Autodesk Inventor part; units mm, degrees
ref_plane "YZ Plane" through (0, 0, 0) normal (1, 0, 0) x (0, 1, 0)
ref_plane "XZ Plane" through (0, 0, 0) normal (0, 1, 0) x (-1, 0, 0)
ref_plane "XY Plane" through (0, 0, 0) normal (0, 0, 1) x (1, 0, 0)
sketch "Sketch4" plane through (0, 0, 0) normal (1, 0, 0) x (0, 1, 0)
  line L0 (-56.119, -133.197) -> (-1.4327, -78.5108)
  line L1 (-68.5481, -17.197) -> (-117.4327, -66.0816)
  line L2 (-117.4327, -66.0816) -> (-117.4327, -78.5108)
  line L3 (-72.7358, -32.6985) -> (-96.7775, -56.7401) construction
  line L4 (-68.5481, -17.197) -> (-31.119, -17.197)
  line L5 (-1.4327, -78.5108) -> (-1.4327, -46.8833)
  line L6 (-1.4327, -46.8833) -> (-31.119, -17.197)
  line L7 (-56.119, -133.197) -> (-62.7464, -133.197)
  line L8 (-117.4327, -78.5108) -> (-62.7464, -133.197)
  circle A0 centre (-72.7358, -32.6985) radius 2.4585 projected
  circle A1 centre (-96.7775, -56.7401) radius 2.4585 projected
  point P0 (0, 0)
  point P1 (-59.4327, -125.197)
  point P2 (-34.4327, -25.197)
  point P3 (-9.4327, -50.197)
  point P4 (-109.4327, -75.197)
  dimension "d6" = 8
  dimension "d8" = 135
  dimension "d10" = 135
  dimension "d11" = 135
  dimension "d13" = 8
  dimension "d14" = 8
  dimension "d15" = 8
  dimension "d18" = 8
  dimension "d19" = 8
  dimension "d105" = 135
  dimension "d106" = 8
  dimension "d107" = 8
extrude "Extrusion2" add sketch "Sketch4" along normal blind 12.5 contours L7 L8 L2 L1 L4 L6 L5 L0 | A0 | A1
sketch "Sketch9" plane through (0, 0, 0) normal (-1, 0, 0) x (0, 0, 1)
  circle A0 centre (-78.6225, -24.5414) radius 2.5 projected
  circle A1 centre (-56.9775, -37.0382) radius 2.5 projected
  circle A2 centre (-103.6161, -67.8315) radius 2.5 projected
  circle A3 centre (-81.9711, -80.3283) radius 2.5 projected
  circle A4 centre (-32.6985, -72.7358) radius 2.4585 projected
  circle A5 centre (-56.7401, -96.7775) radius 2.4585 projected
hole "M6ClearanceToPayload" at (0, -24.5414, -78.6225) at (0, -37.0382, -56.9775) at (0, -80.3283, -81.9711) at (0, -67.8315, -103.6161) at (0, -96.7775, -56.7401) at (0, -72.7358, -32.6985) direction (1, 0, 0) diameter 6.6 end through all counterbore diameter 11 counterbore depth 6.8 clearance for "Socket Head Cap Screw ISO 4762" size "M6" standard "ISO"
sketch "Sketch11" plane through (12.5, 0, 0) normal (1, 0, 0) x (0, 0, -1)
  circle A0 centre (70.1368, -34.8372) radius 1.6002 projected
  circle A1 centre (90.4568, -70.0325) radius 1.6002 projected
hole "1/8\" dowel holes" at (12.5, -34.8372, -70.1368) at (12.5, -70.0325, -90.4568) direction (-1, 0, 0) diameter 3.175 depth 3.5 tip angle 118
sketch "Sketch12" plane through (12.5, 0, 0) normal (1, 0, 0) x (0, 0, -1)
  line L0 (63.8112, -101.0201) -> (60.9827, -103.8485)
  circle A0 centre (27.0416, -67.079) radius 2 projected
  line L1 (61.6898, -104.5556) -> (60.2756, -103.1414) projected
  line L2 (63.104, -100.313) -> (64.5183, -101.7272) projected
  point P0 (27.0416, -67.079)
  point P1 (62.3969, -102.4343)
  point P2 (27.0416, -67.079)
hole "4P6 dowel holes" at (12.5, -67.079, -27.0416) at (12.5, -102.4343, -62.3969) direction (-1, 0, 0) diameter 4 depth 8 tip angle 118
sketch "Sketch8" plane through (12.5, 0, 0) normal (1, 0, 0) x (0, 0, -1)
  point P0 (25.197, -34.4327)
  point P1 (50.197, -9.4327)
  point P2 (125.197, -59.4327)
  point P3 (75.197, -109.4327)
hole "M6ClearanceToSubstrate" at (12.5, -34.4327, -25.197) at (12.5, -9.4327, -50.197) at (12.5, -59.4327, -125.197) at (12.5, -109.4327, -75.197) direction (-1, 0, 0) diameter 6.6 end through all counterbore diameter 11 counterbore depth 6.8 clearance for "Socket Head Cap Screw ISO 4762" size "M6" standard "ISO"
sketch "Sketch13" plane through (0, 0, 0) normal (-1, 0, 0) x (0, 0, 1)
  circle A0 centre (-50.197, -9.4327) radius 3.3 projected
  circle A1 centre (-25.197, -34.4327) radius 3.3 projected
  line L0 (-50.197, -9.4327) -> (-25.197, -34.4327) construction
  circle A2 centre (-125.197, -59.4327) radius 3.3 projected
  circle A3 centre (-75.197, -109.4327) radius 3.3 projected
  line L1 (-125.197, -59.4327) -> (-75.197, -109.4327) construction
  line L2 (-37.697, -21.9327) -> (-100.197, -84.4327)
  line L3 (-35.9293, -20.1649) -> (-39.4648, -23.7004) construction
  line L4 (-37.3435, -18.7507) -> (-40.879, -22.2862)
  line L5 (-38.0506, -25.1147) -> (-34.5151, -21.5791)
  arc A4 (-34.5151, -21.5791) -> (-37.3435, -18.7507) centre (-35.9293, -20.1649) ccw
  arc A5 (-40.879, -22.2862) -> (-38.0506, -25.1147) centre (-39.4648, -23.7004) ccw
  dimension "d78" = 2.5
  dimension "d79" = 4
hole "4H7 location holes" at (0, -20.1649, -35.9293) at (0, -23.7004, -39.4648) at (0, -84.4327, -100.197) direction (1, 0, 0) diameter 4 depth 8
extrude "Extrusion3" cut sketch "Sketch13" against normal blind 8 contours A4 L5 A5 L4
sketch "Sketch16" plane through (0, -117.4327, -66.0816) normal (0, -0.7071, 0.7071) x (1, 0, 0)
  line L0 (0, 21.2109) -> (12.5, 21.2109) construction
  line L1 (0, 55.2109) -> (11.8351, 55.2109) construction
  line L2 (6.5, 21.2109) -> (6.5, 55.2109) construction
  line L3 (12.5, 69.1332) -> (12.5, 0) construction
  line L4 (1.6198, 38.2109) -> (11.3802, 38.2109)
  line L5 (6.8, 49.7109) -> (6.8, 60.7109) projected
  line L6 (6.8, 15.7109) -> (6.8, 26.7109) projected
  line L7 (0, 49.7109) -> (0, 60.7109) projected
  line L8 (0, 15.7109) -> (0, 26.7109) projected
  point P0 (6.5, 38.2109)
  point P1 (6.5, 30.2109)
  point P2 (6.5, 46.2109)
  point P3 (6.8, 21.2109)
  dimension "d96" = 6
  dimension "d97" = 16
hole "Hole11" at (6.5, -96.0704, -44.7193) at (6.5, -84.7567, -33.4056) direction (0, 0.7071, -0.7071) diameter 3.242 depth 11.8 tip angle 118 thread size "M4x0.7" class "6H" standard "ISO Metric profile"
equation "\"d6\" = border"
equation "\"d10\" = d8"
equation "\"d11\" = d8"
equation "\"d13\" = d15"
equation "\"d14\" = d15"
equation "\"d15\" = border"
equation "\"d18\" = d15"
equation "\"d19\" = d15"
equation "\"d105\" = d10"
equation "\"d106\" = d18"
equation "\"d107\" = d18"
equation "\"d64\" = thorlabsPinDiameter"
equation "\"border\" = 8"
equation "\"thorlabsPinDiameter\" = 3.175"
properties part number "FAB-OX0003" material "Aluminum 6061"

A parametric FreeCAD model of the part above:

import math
import FreeCAD as App
import Part
import Sketcher
from FreeCAD import Vector
Q = App.Units.Quantity

doc = App.newDocument("Part")
body = doc.addObject("PartDesign::Body", "Body")

# Sketch on YZ plane
sketch1 = body.newObject("Sketcher::SketchObject", "Sketch")
sketch1.AttachmentSupport = (doc.getObject("YZ_Plane"), [""])
sketch1.MapMode = "FlatFace"
sketch1.addGeometry([
    Part.LineSegment(Vector(-63, -133, 0), Vector(-56, -133, 0)),  # 0
    Part.LineSegment(Vector(-56, -133, 0), Vector(-1, -79, 0)),  # 1
    Part.LineSegment(Vector(-1, -79, 0), Vector(-1, -47, 0)),  # 2
    Part.LineSegment(Vector(-1, -47, 0), Vector(-31, -17, 0)),  # 3
    Part.LineSegment(Vector(-31, -17, 0), Vector(-69, -17, 0)),  # 4
    Part.LineSegment(Vector(-69, -17, 0), Vector(-117, -66, 0)),  # 5
    Part.LineSegment(Vector(-117, -66, 0), Vector(-117, -79, 0)),  # 6
    Part.LineSegment(Vector(-117, -79, 0), Vector(-63, -133, 0)),  # 7
], False)
sketch1.addConstraint([
    Sketcher.Constraint("Coincident", 0, 2, 1, 1),
    Sketcher.Constraint("Coincident", 1, 2, 2, 1),
    Sketcher.Constraint("Coincident", 2, 2, 3, 1),
    Sketcher.Constraint("Coincident", 3, 2, 4, 1),
    Sketcher.Constraint("Coincident", 4, 2, 5, 1),
    Sketcher.Constraint("Coincident", 5, 2, 6, 1),
    Sketcher.Constraint("Coincident", 6, 2, 7, 1),
    Sketcher.Constraint("Coincident", 7, 2, 0, 1),
    Sketcher.Constraint("Horizontal", 0),
    Sketcher.Constraint("Vertical", 2),
    Sketcher.Constraint("Horizontal", 4),
    Sketcher.Constraint("Vertical", 6),
    Sketcher.Constraint("Perpendicular", 1, 3),
    Sketcher.Constraint("Perpendicular", 3, 5),
    Sketcher.Constraint("Perpendicular", 5, 7),
    Sketcher.Constraint("Horizontal", 1, 2, 6, 2),
    Sketcher.Constraint("Equal", 1, 7),
    Sketcher.Constraint("DistanceX", 0, 2, 3, 2, 25.0),
    Sketcher.Constraint("DistanceY", 0, 2, 3, 2, 116.0),
    Sketcher.Constraint("DistanceX", 5, 2, 1, 2, 116.0),
    Sketcher.Constraint("DistanceX", 4, 2, 4, 1, 37.429),
    Sketcher.Constraint("Distance", 1, 77.338),
    Sketcher.Constraint("DistanceX", 0, 2, -1, 1, 56.119),
    Sketcher.Constraint("DistanceY", 0, 2, -1, 1, 133.197),
])
pad1 = body.newObject("PartDesign::Pad", "Pad")
pad1.Profile = sketch1
pad1.Length = 12.5

# Sketch on YZ plane
sketch2 = body.newObject("Sketcher::SketchObject", "Sketch001")
sketch2.AttachmentSupport = (doc.getObject("YZ_Plane"), [""])
sketch2.MapMode = "FlatFace"
sketch2.addGeometry([
    Part.Circle(Vector(-24.5, -78.6, 0), Vector(0, 0, 1), 3.3),  # 0
    Part.Circle(Vector(-37, -57, 0), Vector(0, 0, 1), 3.3),  # 1
    Part.Circle(Vector(-80.3, -82, 0), Vector(0, 0, 1), 3.3),  # 2
    Part.Circle(Vector(-67.8, -103.6, 0), Vector(0, 0, 1), 3.3),  # 3
    Part.Circle(Vector(-96.8, -56.7, 0), Vector(0, 0, 1), 3.3),  # 4
    Part.Circle(Vector(-72.7, -32.7, 0), Vector(0, 0, 1), 3.3),  # 5
], False)
sketch2.addConstraint([
    Sketcher.Constraint("Equal", 0, 1),
    Sketcher.Constraint("Equal", 1, 2),
    Sketcher.Constraint("Equal", 2, 3),
    Sketcher.Constraint("Equal", 3, 4),
    Sketcher.Constraint("Equal", 4, 5),
    Sketcher.Constraint("Diameter", 0, 6.6),
    Sketcher.Constraint("DistanceY", 4, 3, -1, 1, 56.74),
    Sketcher.Constraint("DistanceX", 2, 3, 1, 3, 43.29),
    Sketcher.Constraint("DistanceX", 3, 3, 0, 3, 43.29),
    Sketcher.Constraint("DistanceY", 2, 3, -1, 1, 81.971),
    Sketcher.Constraint("DistanceY", 3, 3, -1, 1, 103.616),
    Sketcher.Constraint("DistanceY", 0, 3, 1, 3, 21.645),
    Sketcher.Constraint("DistanceX", 2, 3, 0, 3, 55.787),
    Sketcher.Constraint("DistanceX", 4, 3, 3, 3, 28.946),
    Sketcher.Constraint("DistanceY", 1, 3, 5, 3, 24.279),
    Sketcher.Constraint("DistanceX", 0, 3, -1, 1, 24.5414),
    Sketcher.Constraint("DistanceY", 0, 3, -1, 1, 78.6225),
    Sketcher.Constraint("DistanceX", 5, 3, -1, 1, 72.7358),
])
doc.recompute()
hole = body.newObject("PartDesign::Hole", "Hole")
hole.Profile = sketch2
hole.ThreadType = "None"
hole.Diameter = 6.6
hole.DepthType = "ThroughAll"
hole.HoleCutType = "Counterbore"
hole.HoleCutDiameter = 11
hole.HoleCutDepth = 6.8
hole.Reversed = True

# Sketch on YZ plane
sketch3 = body.newObject("Sketcher::SketchObject", "Sketch002")
sketch3.AttachmentSupport = (doc.getObject("YZ_Plane"), [""])
sketch3.MapMode = "FlatFace"
sketch3.AttachmentOffset = App.Placement(Vector(0, 0, 12.5), App.Rotation())
sketch3.addGeometry([
    Part.Circle(Vector(-34.8, -70.1, 0), Vector(0, 0, 1), 1.6),
    Part.Circle(Vector(-70, -90.5, 0), Vector(0, 0, 1), 1.6),
], False)
sketch3.addConstraint([
    Sketcher.Constraint("Equal", 0, 1),
    Sketcher.Constraint("Diameter", 0, 3.175),
    Sketcher.Constraint("DistanceY", 1, 3, 0, 3, 20.32),
    Sketcher.Constraint("DistanceX", 0, 3, -1, 1, 34.8372),
    Sketcher.Constraint("DistanceY", 0, 3, -1, 1, 70.1368),
    Sketcher.Constraint("DistanceX", 1, 3, -1, 1, 70.0325),
])
doc.recompute()
hole2 = body.newObject("PartDesign::Hole", "Hole001")
hole2.Profile = sketch3
hole2.ThreadType = "None"
hole2.Diameter = 3.175
hole2.DepthType = "Dimension"
hole2.Depth = 3.5
hole2.DrillPoint = "Angled"
hole2.DrillPointAngle = 118

# Sketch on YZ plane
sketch4 = body.newObject("Sketcher::SketchObject", "Sketch003")
sketch4.AttachmentSupport = (doc.getObject("YZ_Plane"), [""])
sketch4.MapMode = "FlatFace"
sketch4.AttachmentOffset = App.Placement(Vector(0, 0, 12.5), App.Rotation())
sketch4.addGeometry([
    Part.Circle(Vector(-67.1, -27, 0), Vector(0, 0, 1), 2),
    Part.Circle(Vector(-102.4, -62.4, 0), Vector(0, 0, 1), 2),
], False)
sketch4.addConstraint([
    Sketcher.Constraint("Equal", 0, 1),
    Sketcher.Constraint("Diameter", 0, 4.0),
    Sketcher.Constraint("DistanceX", 0, 3, -1, 1, 67.079),
    Sketcher.Constraint("DistanceY", 1, 3, -1, 1, 62.397),
    Sketcher.Constraint("DistanceY", 0, 3, -1, 1, 27.0416),
    Sketcher.Constraint("DistanceX", 1, 3, -1, 1, 102.4343),
])
doc.recompute()
hole3 = body.newObject("PartDesign::Hole", "Hole002")
hole3.Profile = sketch4
hole3.ThreadType = "None"
hole3.Diameter = 4
hole3.DepthType = "Dimension"
hole3.Depth = 8
hole3.DrillPoint = "Angled"
hole3.DrillPointAngle = 118

# Sketch on YZ plane
sketch5 = body.newObject("Sketcher::SketchObject", "Sketch004")
sketch5.AttachmentSupport = (doc.getObject("YZ_Plane"), [""])
sketch5.MapMode = "FlatFace"
sketch5.AttachmentOffset = App.Placement(Vector(0, 0, 12.5), App.Rotation())
sketch5.addGeometry([
    Part.Circle(Vector(-34.4, -25.2, 0), Vector(0, 0, 1), 3.3),
    Part.Circle(Vector(-9.4, -50.2, 0), Vector(0, 0, 1), 3.3),
    Part.Circle(Vector(-59.4, -125.2, 0), Vector(0, 0, 1), 3.3),
    Part.Circle(Vector(-109.4, -75.2, 0), Vector(0, 0, 1), 3.3),
], False)
sketch5.addConstraint([
    Sketcher.Constraint("Equal", 0, 1),
    Sketcher.Constraint("Equal", 1, 2),
    Sketcher.Constraint("Equal", 2, 3),
    Sketcher.Constraint("Diameter", 0, 6.6),
    Sketcher.Constraint("DistanceX", 0, 3, 1, 3, 25.0),
    Sketcher.Constraint("DistanceY", 1, 3, 0, 3, 25.0),
    Sketcher.Constraint("DistanceX", 2, 3, 1, 3, 50.0),
    Sketcher.Constraint("DistanceY", 2, 3, 1, 3, 75.0),
    Sketcher.Constraint("DistanceX", 3, 3, 2, 3, 50.0),
    Sketcher.Constraint("DistanceY", 2, 3, 3, 3, 50.0),
    Sketcher.Constraint("DistanceY", 0, 3, -1, 1, 25.197),
    Sketcher.Constraint("DistanceX", 0, 3, -1, 1, 34.4327),
])
doc.recompute()
hole4 = body.newObject("PartDesign::Hole", "Hole003")
hole4.Profile = sketch5
hole4.ThreadType = "None"
hole4.Diameter = 6.6
hole4.DepthType = "ThroughAll"
hole4.HoleCutType = "Counterbore"
hole4.HoleCutDiameter = 11
hole4.HoleCutDepth = 6.8

# Sketch on YZ plane
sketch6 = body.newObject("Sketcher::SketchObject", "Sketch005")
sketch6.AttachmentSupport = (doc.getObject("YZ_Plane"), [""])
sketch6.MapMode = "FlatFace"
sketch6.addGeometry([
    Part.Circle(Vector(-20.2, -35.9, 0), Vector(0, 0, 1), 2),
    Part.Circle(Vector(-23.7, -39.5, 0), Vector(0, 0, 1), 2),
    Part.Circle(Vector(-84.4, -100.2, 0), Vector(0, 0, 1), 2),
], False)
sketch6.addConstraint([
    Sketcher.Constraint("Equal", 0, 1),
    Sketcher.Constraint("Equal", 1, 2),
    Sketcher.Constraint("Diameter", 0, 4.0),
    Sketcher.Constraint("DistanceX", 0, 3, -1, 1, 20.165),
    Sketcher.Constraint("DistanceY", 2, 3, -1, 1, 100.197),
    Sketcher.Constraint("DistanceY", 0, 3, -1, 1, 35.9293),
    Sketcher.Constraint("DistanceX", 1, 3, -1, 1, 23.7004),
    Sketcher.Constraint("DistanceY", 1, 3, -1, 1, 39.4648),
    Sketcher.Constraint("DistanceX", 2, 3, -1, 1, 84.4327),
])
doc.recompute()
hole5 = body.newObject("PartDesign::Hole", "Hole004")
hole5.Profile = sketch6
hole5.ThreadType = "None"
hole5.Diameter = 4
hole5.DepthType = "Dimension"
hole5.Depth = 8
hole5.DrillPoint = "Flat"
hole5.Reversed = True

# Sketch on YZ plane
sketch7 = body.newObject("Sketcher::SketchObject", "Sketch006")
sketch7.AttachmentSupport = (doc.getObject("YZ_Plane"), [""])
sketch7.MapMode = "FlatFace"
sketch7.addGeometry([
    Part.ArcOfCircle(Part.Circle(Vector(-20.2, -35.9, 0), Vector(0, 0, 1), 2), math.radians(-45), math.radians(135)),
    Part.LineSegment(Vector(-18.8, -37.3, 0), Vector(-22.3, -40.9, 0)),
    Part.ArcOfCircle(Part.Circle(Vector(-23.7, -39.5, 0), Vector(0, 0, 1), 2), math.radians(135), math.radians(315)),
    Part.LineSegment(Vector(-25.1, -38.1, 0), Vector(-21.6, -34.5, 0)),
], False)
sketch7.addConstraint([
    Sketcher.Constraint("Tangent", 0, 1, 1, 1),
    Sketcher.Constraint("Tangent", 1, 2, 2, 2),
    Sketcher.Constraint("Tangent", 2, 1, 3, 1),
    Sketcher.Constraint("Tangent", 3, 2, 0, 2),
    Sketcher.Constraint("Equal", 0, 2),
    Sketcher.Constraint("Radius", 0, 2.0),
    Sketcher.Constraint("Angle", 1, Q("-135 deg")),
    Sketcher.Constraint("Distance", 1, 5.0),
    Sketcher.Constraint("DistanceX", 0, 3, -1, 1, 20.165),
    Sketcher.Constraint("DistanceY", 1, 2, -1, 1, 40.879),
])
pocket1 = body.newObject("PartDesign::Pocket", "Pocket")
pocket1.Profile = sketch7
pocket1.Length = 8
pocket1.Reversed = True

# Sketch on an angled plane
sketch8 = body.newObject("Sketcher::SketchObject", "Sketch007")
sketch8.Placement = App.Placement(Vector(0, -25.67555, 25.67555), App.Rotation(Vector(0, -0.707106781, -0.707106781), Vector(0.999999999, 0, 0), Vector(0, -0.707106781, 0.707106781), "ZXY"))
sketch8.addGeometry([
    Part.Circle(Vector(99.6, 6.5, 0), Vector(0, 0, 1), 1.6),
    Part.Circle(Vector(83.6, 6.5, 0), Vector(0, 0, 1), 1.6),
], False)
sketch8.addConstraint([
    Sketcher.Constraint("Equal", 0, 1),
    Sketcher.Constraint("Horizontal", 0, 3, 1, 3),
    Sketcher.Constraint("Diameter", 0, 3.242),
    Sketcher.Constraint("DistanceX", 1, 3, 0, 3, 16.0),
    Sketcher.Constraint("DistanceY", -1, 1, 0, 3, 6.5),
    Sketcher.Constraint("DistanceX", -1, 1, 0, 3, 99.5534),
])
doc.recompute()
hole6 = body.newObject("PartDesign::Hole", "Hole005")
hole6.Profile = sketch8
hole6.ThreadType = "None"
hole6.Diameter = 3.242
hole6.DepthType = "Dimension"
hole6.Depth = 11.8
hole6.DrillPoint = "Angled"
hole6.DrillPointAngle = 118

doc.recompute()
